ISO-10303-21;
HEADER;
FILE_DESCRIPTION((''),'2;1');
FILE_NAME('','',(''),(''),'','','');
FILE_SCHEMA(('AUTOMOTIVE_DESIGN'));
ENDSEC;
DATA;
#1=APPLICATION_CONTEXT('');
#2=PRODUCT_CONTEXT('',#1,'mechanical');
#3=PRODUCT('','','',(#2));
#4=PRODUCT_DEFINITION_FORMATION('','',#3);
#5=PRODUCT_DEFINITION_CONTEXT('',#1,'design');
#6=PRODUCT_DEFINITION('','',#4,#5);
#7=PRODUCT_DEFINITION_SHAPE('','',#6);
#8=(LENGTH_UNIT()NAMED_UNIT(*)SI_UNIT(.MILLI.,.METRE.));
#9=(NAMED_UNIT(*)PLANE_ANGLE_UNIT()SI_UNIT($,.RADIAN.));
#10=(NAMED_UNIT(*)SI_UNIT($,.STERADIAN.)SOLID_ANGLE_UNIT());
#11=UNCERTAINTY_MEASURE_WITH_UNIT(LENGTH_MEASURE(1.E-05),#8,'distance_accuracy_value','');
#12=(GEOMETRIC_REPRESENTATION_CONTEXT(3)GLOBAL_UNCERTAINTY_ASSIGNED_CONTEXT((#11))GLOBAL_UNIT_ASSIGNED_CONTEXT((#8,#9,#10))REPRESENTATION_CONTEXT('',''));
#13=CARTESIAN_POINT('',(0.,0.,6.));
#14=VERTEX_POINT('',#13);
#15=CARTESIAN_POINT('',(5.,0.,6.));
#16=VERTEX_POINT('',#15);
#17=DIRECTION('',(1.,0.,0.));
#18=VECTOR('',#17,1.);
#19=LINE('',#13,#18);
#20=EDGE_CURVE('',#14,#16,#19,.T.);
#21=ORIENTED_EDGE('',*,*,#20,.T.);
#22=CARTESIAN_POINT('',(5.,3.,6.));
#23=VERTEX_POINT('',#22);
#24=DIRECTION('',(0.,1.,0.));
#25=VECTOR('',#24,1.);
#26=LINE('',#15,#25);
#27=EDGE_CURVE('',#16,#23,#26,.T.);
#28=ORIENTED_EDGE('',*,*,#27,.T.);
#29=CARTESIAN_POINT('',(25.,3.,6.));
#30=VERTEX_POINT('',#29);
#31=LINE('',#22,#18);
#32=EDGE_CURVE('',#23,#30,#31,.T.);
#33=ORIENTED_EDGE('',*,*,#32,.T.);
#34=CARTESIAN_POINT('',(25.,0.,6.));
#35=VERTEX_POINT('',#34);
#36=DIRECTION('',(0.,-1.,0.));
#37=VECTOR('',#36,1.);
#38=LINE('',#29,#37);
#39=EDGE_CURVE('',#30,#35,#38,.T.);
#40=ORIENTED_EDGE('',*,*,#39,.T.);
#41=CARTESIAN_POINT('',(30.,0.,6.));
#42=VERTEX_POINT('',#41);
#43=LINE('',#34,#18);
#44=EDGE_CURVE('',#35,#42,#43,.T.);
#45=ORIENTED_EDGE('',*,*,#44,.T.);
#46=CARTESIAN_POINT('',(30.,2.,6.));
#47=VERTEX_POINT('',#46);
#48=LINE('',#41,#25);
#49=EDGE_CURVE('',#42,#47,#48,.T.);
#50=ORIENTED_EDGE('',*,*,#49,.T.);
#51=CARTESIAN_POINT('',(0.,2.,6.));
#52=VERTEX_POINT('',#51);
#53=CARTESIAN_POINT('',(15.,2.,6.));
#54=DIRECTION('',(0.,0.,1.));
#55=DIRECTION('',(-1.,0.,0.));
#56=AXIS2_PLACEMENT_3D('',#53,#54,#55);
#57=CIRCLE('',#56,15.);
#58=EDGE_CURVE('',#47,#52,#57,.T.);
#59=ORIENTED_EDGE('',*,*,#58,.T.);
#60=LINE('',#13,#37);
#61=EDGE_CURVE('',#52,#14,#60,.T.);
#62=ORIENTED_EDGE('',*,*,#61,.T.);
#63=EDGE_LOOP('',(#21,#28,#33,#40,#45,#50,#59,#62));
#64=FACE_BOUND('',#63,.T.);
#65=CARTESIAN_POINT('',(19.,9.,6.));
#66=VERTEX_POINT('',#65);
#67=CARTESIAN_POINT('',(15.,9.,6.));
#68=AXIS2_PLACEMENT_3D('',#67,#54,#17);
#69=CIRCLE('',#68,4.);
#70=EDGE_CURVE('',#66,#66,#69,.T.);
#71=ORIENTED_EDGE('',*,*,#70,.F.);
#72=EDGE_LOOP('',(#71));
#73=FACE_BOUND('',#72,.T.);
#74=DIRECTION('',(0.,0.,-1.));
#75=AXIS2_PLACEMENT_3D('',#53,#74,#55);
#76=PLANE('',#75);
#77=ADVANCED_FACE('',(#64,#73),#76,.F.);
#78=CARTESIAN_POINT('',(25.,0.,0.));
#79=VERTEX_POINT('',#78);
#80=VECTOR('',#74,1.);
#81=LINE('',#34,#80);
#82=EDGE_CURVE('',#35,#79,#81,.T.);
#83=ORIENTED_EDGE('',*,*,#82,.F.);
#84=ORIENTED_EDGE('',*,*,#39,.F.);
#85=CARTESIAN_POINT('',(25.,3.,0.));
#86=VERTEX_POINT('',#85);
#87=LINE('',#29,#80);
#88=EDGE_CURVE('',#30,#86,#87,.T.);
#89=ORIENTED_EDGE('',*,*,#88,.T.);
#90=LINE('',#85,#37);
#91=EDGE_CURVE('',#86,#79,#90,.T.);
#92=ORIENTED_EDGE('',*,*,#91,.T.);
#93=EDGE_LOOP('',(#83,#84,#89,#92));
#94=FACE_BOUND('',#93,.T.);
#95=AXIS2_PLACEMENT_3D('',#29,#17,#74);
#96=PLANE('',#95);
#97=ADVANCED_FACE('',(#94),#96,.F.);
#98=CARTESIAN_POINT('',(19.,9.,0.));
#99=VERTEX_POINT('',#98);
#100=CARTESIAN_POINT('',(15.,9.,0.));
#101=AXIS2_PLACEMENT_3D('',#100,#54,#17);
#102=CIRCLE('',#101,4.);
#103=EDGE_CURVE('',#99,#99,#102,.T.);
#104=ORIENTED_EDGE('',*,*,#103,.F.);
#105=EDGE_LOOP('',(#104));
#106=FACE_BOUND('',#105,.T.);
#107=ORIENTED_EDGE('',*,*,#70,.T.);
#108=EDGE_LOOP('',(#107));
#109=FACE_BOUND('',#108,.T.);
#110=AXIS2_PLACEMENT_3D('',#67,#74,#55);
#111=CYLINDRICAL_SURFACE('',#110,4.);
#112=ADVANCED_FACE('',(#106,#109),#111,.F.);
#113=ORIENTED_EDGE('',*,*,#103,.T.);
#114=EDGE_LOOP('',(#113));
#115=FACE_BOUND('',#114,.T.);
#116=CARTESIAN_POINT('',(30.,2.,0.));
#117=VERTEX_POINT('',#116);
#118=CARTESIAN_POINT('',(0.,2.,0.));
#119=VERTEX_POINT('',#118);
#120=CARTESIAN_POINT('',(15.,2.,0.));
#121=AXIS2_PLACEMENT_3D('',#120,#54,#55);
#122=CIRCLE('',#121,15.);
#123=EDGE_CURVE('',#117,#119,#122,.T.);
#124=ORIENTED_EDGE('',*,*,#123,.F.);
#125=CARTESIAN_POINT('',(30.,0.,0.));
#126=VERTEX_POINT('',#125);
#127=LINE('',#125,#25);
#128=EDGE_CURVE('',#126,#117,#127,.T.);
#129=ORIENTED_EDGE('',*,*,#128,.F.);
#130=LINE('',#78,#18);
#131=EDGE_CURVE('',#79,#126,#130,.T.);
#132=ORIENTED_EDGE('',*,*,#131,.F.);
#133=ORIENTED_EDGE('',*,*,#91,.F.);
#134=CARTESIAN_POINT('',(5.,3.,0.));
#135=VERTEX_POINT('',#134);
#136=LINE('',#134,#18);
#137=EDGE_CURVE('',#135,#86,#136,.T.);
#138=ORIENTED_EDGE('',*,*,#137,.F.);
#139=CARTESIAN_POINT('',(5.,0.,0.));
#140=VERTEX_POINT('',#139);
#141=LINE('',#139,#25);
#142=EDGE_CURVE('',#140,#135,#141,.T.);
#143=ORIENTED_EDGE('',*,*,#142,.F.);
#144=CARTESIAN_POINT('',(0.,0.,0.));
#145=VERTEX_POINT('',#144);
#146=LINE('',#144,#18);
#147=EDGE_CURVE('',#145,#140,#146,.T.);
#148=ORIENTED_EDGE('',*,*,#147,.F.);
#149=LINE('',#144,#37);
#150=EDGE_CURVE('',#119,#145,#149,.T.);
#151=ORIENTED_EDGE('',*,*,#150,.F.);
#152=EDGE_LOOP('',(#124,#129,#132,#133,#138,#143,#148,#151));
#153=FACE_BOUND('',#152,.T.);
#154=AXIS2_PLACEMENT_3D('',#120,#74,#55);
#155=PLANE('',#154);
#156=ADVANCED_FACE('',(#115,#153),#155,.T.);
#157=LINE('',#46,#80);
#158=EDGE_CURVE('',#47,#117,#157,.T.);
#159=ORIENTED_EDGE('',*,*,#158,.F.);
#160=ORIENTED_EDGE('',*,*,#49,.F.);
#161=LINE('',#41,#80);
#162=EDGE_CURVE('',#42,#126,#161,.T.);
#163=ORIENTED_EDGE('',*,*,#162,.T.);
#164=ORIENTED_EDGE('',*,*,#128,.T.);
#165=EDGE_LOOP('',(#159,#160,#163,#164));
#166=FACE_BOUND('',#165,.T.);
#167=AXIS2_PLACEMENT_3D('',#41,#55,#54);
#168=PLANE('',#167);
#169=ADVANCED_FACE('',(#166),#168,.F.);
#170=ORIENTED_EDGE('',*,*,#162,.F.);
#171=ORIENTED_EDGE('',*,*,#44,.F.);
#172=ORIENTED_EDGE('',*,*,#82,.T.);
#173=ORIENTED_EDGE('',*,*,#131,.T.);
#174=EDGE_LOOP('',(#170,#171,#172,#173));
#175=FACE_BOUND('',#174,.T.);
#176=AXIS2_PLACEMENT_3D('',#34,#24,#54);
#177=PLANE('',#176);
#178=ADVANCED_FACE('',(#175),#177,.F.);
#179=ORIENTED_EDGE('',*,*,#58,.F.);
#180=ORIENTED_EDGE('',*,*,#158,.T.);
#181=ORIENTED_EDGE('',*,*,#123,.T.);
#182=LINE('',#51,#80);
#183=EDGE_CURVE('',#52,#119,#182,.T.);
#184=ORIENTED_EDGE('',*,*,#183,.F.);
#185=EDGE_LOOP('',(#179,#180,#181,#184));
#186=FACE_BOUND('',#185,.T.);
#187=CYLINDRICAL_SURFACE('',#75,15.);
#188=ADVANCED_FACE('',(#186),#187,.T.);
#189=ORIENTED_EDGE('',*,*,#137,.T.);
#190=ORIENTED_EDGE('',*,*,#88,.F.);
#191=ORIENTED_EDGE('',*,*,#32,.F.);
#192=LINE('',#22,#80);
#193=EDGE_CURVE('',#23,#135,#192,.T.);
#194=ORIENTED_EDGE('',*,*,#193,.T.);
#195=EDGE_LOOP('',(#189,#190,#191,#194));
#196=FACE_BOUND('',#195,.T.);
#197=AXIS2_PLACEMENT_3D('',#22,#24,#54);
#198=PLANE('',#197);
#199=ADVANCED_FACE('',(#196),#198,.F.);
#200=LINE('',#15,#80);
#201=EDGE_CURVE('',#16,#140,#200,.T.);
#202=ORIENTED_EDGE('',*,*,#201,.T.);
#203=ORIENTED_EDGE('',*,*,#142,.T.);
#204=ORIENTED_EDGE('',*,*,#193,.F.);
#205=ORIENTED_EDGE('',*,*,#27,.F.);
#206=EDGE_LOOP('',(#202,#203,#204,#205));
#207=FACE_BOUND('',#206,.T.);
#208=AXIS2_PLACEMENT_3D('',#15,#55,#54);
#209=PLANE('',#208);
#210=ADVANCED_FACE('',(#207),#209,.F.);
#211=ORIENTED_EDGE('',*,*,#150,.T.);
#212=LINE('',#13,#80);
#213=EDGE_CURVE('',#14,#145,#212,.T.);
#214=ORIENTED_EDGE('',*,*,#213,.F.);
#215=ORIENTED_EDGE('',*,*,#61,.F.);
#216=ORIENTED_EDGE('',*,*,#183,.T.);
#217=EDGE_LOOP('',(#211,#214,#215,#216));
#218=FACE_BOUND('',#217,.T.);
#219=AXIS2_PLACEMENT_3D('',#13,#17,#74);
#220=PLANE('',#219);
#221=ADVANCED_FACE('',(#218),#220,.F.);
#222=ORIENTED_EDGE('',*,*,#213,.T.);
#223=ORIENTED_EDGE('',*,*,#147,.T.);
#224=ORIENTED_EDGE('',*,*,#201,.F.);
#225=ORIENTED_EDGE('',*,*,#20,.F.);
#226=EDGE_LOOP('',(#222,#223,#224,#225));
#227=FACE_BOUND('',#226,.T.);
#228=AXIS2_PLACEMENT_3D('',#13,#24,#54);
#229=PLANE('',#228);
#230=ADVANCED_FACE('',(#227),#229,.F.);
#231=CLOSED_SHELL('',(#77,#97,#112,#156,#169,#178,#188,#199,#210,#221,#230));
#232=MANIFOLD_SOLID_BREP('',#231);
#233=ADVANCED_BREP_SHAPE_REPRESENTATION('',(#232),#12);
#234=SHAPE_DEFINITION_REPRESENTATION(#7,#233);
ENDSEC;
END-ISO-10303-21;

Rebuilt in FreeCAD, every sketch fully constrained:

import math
import FreeCAD as App
import Part
import Sketcher

doc = App.newDocument("Part")
body = doc.addObject("PartDesign::Body", "Body")

sketch1 = doc.addObject("Sketcher::SketchObject", "Sketch")
body.addObject(sketch1)
sketch1.AttachmentSupport = (doc.XY_Plane, [""])
sketch1.MapMode = "FlatFace"
sketch1.addGeometry(Part.LineSegment(App.Vector(0, 0, 0), App.Vector(5, 0, 0)), False)
sketch1.addGeometry(Part.LineSegment(App.Vector(5, 0, 0), App.Vector(5, 3, 0)), False)
sketch1.addGeometry(Part.LineSegment(App.Vector(5, 3, 0), App.Vector(25, 3, 0)), False)
sketch1.addGeometry(Part.LineSegment(App.Vector(25, 3, 0), App.Vector(25, 0, 0)), False)
sketch1.addGeometry(Part.LineSegment(App.Vector(25, 0, 0), App.Vector(30, 0, 0)), False)
sketch1.addGeometry(Part.LineSegment(App.Vector(30, 0, 0), App.Vector(30, 2, 0)), False)
sketch1.addGeometry(Part.ArcOfCircle(Part.Circle(App.Vector(15, 2, 0), App.Vector(0, 0, 1), 15), math.radians(0), math.radians(180)), False)
sketch1.addGeometry(Part.LineSegment(App.Vector(0, 2, 0), App.Vector(0, 0, 0)), False)
sketch1.addGeometry(Part.Circle(App.Vector(15, 9, 0), App.Vector(0, 0, 1), 4), False)
sketch1.addConstraint(Sketcher.Constraint("Coincident", 0, 2, 1, 1))
sketch1.addConstraint(Sketcher.Constraint("Coincident", 1, 2, 2, 1))
sketch1.addConstraint(Sketcher.Constraint("Coincident", 2, 2, 3, 1))
sketch1.addConstraint(Sketcher.Constraint("Coincident", 3, 2, 4, 1))
sketch1.addConstraint(Sketcher.Constraint("Coincident", 4, 2, 5, 1))
sketch1.addConstraint(Sketcher.Constraint("Tangent", 5, 2, 6, 1))
sketch1.addConstraint(Sketcher.Constraint("Tangent", 6, 2, 7, 1))
sketch1.addConstraint(Sketcher.Constraint("Coincident", 7, 2, 0, 1))
sketch1.addConstraint(Sketcher.Constraint("Horizontal", 0))
sketch1.addConstraint(Sketcher.Constraint("Vertical", 1))
sketch1.addConstraint(Sketcher.Constraint("Horizontal", 2))
sketch1.addConstraint(Sketcher.Constraint("Vertical", 3))
sketch1.addConstraint(Sketcher.Constraint("Horizontal", 4))
sketch1.addConstraint(Sketcher.Constraint("Vertical", 5))
sketch1.addConstraint(Sketcher.Constraint("Vertical", 7))
sketch1.addConstraint(Sketcher.Constraint("Coincident", 7, 2, -1, 1))
sketch1.addConstraint(Sketcher.Constraint("PointOnObject", 3, 2, -1))
sketch1.addConstraint(Sketcher.Constraint("Vertical", 6, 3, 8, 3))
sketch1.addConstraint(Sketcher.Constraint("Equal", 0, 4))
sketch1.addConstraint(Sketcher.Constraint("Diameter", 8, 8.0))
sketch1.addConstraint(Sketcher.Constraint("Radius", 6, 15.0))
sketch1.addConstraint(Sketcher.Constraint("DistanceX", 0, 1, 0, 2, 5.0))
sketch1.addConstraint(Sketcher.Constraint("DistanceY", 1, 1, 1, 2, 3.0))
sketch1.addConstraint(Sketcher.Constraint("DistanceY", 5, 1, 5, 2, 2.0))
sketch1.addConstraint(Sketcher.Constraint("DistanceY", -1, 1, 8, 3, 9.0))
pad1 = doc.addObject("PartDesign::Pad", "Pad")
body.addObject(pad1)
pad1.Profile = sketch1
pad1.Length = 6

doc.recompute()
